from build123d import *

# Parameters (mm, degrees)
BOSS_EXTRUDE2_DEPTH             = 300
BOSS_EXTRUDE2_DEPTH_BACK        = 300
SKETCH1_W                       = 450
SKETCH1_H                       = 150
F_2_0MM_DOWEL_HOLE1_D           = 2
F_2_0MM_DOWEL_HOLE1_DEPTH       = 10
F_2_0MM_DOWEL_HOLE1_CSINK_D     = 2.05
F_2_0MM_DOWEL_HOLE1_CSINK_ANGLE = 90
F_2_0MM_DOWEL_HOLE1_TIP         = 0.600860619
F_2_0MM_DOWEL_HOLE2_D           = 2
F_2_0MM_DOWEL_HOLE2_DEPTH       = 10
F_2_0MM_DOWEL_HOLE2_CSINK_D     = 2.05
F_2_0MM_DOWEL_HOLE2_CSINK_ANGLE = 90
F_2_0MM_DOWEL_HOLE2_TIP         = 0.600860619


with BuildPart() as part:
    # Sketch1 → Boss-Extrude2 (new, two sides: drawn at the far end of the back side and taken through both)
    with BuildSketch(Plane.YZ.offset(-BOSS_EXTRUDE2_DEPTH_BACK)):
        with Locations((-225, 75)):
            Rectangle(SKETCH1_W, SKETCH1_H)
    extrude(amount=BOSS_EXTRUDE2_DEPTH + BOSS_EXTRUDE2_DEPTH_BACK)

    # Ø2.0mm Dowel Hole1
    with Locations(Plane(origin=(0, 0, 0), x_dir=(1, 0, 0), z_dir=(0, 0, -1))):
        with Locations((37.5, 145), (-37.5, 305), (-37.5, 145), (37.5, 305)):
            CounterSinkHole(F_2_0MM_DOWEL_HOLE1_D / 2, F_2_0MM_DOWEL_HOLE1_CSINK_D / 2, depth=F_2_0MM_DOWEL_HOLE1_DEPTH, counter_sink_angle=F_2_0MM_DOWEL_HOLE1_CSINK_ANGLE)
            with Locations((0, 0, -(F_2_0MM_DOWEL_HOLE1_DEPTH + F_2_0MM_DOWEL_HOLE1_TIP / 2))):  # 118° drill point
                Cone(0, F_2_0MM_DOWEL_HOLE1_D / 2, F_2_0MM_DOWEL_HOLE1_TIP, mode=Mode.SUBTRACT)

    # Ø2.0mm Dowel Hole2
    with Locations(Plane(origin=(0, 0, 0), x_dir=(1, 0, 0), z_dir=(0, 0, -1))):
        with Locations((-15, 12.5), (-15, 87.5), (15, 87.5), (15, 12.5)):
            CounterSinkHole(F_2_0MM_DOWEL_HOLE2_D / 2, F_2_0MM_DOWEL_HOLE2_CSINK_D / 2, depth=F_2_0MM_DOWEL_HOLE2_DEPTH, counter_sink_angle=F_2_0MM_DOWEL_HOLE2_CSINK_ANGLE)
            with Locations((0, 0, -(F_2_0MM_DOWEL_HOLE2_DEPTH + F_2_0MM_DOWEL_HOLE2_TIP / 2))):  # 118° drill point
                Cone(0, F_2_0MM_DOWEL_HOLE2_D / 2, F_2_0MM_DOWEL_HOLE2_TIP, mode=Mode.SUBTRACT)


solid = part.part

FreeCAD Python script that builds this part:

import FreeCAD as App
import Part
import Sketcher


def add_polygon(sketch, points):
    """Adds a closed chain of lines whose ends are joined by coincident constraints."""
    first, n = sketch.GeometryCount, len(points)
    for a, b in zip(points, points[1:] + points[:1]):
        sketch.addGeometry(Part.LineSegment(App.Vector(*a, 0), App.Vector(*b, 0)), False)
    for i in range(n):
        sketch.addConstraint(Sketcher.Constraint("Coincident", first + i, 2, first + (i + 1) % n, 1))

doc = App.newDocument("Part")
body = doc.addObject("PartDesign::Body", "Body")

# Sketch on YZ plane
sketch1 = doc.addObject("Sketcher::SketchObject", "Sketch")
body.addObject(sketch1)
sketch1.AttachmentSupport = (doc.YZ_Plane, [""])
sketch1.MapMode = "FlatFace"
add_polygon(sketch1, [(-450, 150), (-450, 0), (0, 0), (0, 150)])  # lines 0-3
sketch1.addConstraint([
    Sketcher.Constraint("Vertical", 0),
    Sketcher.Constraint("Horizontal", 1),
    Sketcher.Constraint("Vertical", 2),
    Sketcher.Constraint("Horizontal", 3),
    Sketcher.Constraint("Coincident", 1, 2, -1, 1),
    Sketcher.Constraint("DistanceX", 1, 1, 1, 2, 450.0),
    Sketcher.Constraint("DistanceY", 0, 2, 0, 1, 150.0),
])
pad1 = doc.addObject("PartDesign::Pad", "Pad")
body.addObject(pad1)
pad1.Profile = sketch1
pad1.Type = "TwoLengths"
pad1.Length = 300
pad1.Length2 = 300

# Sketch on XY plane
sketch2 = doc.addObject("Sketcher::SketchObject", "Sketch001")
body.addObject(sketch2)
sketch2.AttachmentSupport = (doc.XY_Plane, [""])
sketch2.MapMode = "FlatFace"
sketch2.addGeometry([
    Part.Circle(App.Vector(37.5, -145, 0), App.Vector(0, 0, 1), 1),
    Part.Circle(App.Vector(-37.5, -305, 0), App.Vector(0, 0, 1), 1),
    Part.Circle(App.Vector(-37.5, -145, 0), App.Vector(0, 0, 1), 1),
    Part.Circle(App.Vector(37.5, -305, 0), App.Vector(0, 0, 1), 1),
], False)
sketch2.addConstraint([
    Sketcher.Constraint("Equal", 0, 1),
    Sketcher.Constraint("Equal", 1, 2),
    Sketcher.Constraint("Equal", 2, 3),
    Sketcher.Constraint("Symmetric", 0, 3, 2, 3, -2),
    Sketcher.Constraint("Symmetric", 1, 3, 3, 3, -2),
    Sketcher.Constraint("Vertical", 1, 3, 2, 3),
    Sketcher.Constraint("Diameter", 0, 2.0),
    Sketcher.Constraint("DistanceY", 0, 3, -1, 1, 145.0),
    Sketcher.Constraint("DistanceY", 1, 3, -1, 1, 305.0),
    Sketcher.Constraint("DistanceX", 1, 3, 0, 3, 75.0),
])
doc.recompute()
hole = doc.addObject("PartDesign::Hole", "Hole")
body.addObject(hole)
hole.Profile = sketch2
hole.ThreadType = "None"
hole.Diameter = 2
hole.DepthType = "Dimension"
hole.Depth = 10
hole.DrillPoint = "Angled"
hole.DrillPointAngle = 118
hole.HoleCutType = "Countersink"
hole.HoleCutDiameter = 2.05
hole.HoleCutCountersinkAngle = 90
hole.Reversed = True

# Sketch on XY plane
sketch3 = doc.addObject("Sketcher::SketchObject", "Sketch002")
body.addObject(sketch3)
sketch3.AttachmentSupport = (doc.XY_Plane, [""])
sketch3.MapMode = "FlatFace"
sketch3.addGeometry([
    Part.Circle(App.Vector(-15, -12.5, 0), App.Vector(0, 0, 1), 1),
    Part.Circle(App.Vector(-15, -87.5, 0), App.Vector(0, 0, 1), 1),
    Part.Circle(App.Vector(15, -87.5, 0), App.Vector(0, 0, 1), 1),
    Part.Circle(App.Vector(15, -12.5, 0), App.Vector(0, 0, 1), 1),
], False)
sketch3.addConstraint([
    Sketcher.Constraint("Equal", 0, 1),
    Sketcher.Constraint("Equal", 1, 2),
    Sketcher.Constraint("Equal", 2, 3),
    Sketcher.Constraint("Symmetric", 1, 3, 2, 3, -2),
    Sketcher.Constraint("Symmetric", 0, 3, 3, 3, -2),
    Sketcher.Constraint("Vertical", 0, 3, 1, 3),
    Sketcher.Constraint("Diameter", 0, 2.0),
    Sketcher.Constraint("DistanceX", 0, 3, -1, 1, 15.0),
    Sketcher.Constraint("DistanceY", 1, 3, 0, 3, 75.0),
    Sketcher.Constraint("DistanceY", 0, 3, -1, 1, 12.5),
])
doc.recompute()
hole2 = doc.addObject("PartDesign::Hole", "Hole001")
body.addObject(hole2)
hole2.Profile = sketch3
hole2.ThreadType = "None"
hole2.Diameter = 2
hole2.DepthType = "Dimension"
hole2.Depth = 10
hole2.DrillPoint = "Angled"
hole2.DrillPointAngle = 118
hole2.HoleCutType = "Countersink"
hole2.HoleCutDiameter = 2.05
hole2.HoleCutCountersinkAngle = 90
hole2.Reversed = True

doc.recompute()
